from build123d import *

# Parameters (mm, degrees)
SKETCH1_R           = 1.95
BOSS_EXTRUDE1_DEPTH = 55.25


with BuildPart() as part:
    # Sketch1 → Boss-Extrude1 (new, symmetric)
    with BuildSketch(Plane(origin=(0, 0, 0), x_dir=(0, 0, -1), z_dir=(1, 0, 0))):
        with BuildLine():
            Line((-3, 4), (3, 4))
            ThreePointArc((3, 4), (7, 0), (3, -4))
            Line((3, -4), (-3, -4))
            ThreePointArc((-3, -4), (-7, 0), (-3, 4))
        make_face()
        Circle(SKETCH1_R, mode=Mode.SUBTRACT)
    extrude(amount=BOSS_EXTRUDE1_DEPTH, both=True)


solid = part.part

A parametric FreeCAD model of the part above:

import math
import FreeCAD as App
import Part
import Sketcher
Q = App.Units.Quantity

doc = App.newDocument("Part")
body = doc.addObject("PartDesign::Body", "Body")

sketch1 = body.newObject("Sketcher::SketchObject", "Sketch")
sketch1.AttachmentSupport = (doc.getObject("YZ_Plane"), [""])
sketch1.MapMode = "FlatFace"
sketch1.addGeometry([
    Part.LineSegment(App.Vector(4, -3, 0), App.Vector(4, 3, 0)),
    Part.ArcOfCircle(Part.Circle(App.Vector(0, 3, 0), App.Vector(0, 0, 1), 4), math.radians(0), math.radians(180)),
    Part.LineSegment(App.Vector(-4, 3, 0), App.Vector(-4, -3, 0)),
    Part.ArcOfCircle(Part.Circle(App.Vector(0, -3, 0), App.Vector(0, 0, 1), 4), math.radians(180), math.radians(360)),
    Part.Circle(App.Vector(0, 0, 0), App.Vector(0, 0, 1), 1.9),
], False)
sketch1.addConstraint([
    Sketcher.Constraint("Tangent", 0, 2, 1, 1),
    Sketcher.Constraint("Tangent", 1, 2, 2, 1),
    Sketcher.Constraint("Tangent", 2, 2, 3, 1),
    Sketcher.Constraint("Tangent", 3, 2, 0, 1),
    Sketcher.Constraint("Vertical", 0),
    Sketcher.Constraint("Vertical", 2),
    Sketcher.Constraint("Coincident", 4, 3, -1, 1),
    Sketcher.Constraint("Symmetric", 1, 3, 3, 3, -1, 1),
    Sketcher.Constraint("Radius", 1, Q("4 mm")),
    Sketcher.Constraint("Diameter", 4, Q("3.9 mm")),
    Sketcher.Constraint("DistanceY", 0, 1, 0, 2, Q("6 mm")),
])
pad1 = body.newObject("PartDesign::Pad", "Pad")
pad1.Profile = sketch1
pad1.Length = 110.5
pad1.Midplane = True

doc.recompute()
